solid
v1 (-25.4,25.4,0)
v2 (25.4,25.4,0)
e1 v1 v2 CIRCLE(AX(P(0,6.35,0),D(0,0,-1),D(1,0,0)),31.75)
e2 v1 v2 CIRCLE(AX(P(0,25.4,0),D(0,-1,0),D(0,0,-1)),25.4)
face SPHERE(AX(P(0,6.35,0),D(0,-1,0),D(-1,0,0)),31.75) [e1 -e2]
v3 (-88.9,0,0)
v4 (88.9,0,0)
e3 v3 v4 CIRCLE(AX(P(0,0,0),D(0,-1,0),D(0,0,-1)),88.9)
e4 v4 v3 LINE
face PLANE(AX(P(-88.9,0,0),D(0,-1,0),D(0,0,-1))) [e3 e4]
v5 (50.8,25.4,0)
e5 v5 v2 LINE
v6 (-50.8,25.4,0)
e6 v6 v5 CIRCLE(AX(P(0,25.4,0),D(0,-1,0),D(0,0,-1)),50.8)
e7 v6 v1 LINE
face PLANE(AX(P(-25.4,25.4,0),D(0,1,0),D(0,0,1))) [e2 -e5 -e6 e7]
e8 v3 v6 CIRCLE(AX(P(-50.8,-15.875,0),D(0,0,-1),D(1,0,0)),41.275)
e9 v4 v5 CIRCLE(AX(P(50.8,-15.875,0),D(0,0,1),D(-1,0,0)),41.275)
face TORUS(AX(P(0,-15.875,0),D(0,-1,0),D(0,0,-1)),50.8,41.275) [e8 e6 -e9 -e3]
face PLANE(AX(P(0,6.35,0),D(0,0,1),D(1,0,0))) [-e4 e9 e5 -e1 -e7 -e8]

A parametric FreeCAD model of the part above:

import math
import FreeCAD as App
import Part
import Sketcher

V = App.Vector
Q = App.Units.Quantity

doc = App.newDocument("Part")
params = doc.addObject("Spreadsheet::Sheet", "Params")
for row, (alias, value) in enumerate([
    ("sketch1_width", "1 in"),
    ("sketch1_radius", "1.25 in"),
    ("sketch1_width2", "3.5 in"),
    ("sketch1_height", "1.5 in"),
    ("revolution_angle", "180 deg"),
], start=1):
    params.set(f"A{row}", alias)
    params.set(f"B{row}", "=" + value)
    params.setAlias(f"B{row}", alias)

body = doc.addObject("PartDesign::Body", "Body")

# Sketch on XY plane
sketch1 = doc.addObject("Sketcher::SketchObject", "Sketch")
body.addObject(sketch1)
sketch1.AttachmentSupport = (doc.XY_Plane, [""])
sketch1.MapMode = "FlatFace"
sketch1.addGeometry(Part.LineSegment(V(0, 38.1, 0), V(0, 0, 0)), False)
sketch1.addGeometry(Part.LineSegment(V(0, 0, 0), V(88.9, 0, 0)), False)
sketch1.addGeometry(Part.ArcOfCircle(Part.Circle(V(50.8, -15.875, 0), V(0, 0, 1), 41.275), math.radians(22.619865), math.radians(90)), False)
sketch1.addGeometry(Part.LineSegment(V(50.8, 25.4, 0), V(25.4, 25.4, 0)), False)
sketch1.addGeometry(Part.ArcOfCircle(Part.Circle(V(0, 6.35, 0), V(0, 0, 1), 31.75), math.radians(36.869898), math.radians(90)), False)
sketch1.addConstraint(Sketcher.Constraint("Coincident", 0, 2, 1, 1))
sketch1.addConstraint(Sketcher.Constraint("Coincident", 1, 2, 2, 1))
sketch1.addConstraint(Sketcher.Constraint("Tangent", 2, 2, 3, 1))
sketch1.addConstraint(Sketcher.Constraint("Coincident", 3, 2, 4, 1))
sketch1.addConstraint(Sketcher.Constraint("Coincident", 4, 2, 0, 1))
sketch1.addConstraint(Sketcher.Constraint("Vertical", 0))
sketch1.addConstraint(Sketcher.Constraint("Horizontal", 1))
sketch1.addConstraint(Sketcher.Constraint("Horizontal", 3))
sketch1.addConstraint(Sketcher.Constraint("Coincident", 0, 2, -1, 1))
sketch1.addConstraint(Sketcher.Constraint("PointOnObject", 4, 3, -2))
sketch1.addConstraint(Sketcher.Constraint("DistanceX", 3, 2, 3, 1, Q("1 in")))
sketch1.addConstraint(Sketcher.Constraint("Radius", 4, Q("1.25 in")))
sketch1.addConstraint(Sketcher.Constraint("DistanceX", 1, 1, 1, 2, Q("3.5 in")))
sketch1.addConstraint(Sketcher.Constraint("DistanceY", 0, 2, 0, 1, Q("1.5 in")))
sketch1.addConstraint(Sketcher.Constraint("DistanceX", -1, 1, 2, 3, Q("2 in")))
sketch1.setExpression("Constraints[10]", "Params.sketch1_width")
sketch1.setExpression("Constraints[11]", "Params.sketch1_radius")
sketch1.setExpression("Constraints[12]", "Params.sketch1_width2")
sketch1.setExpression("Constraints[13]", "Params.sketch1_height")
revolution = doc.addObject("PartDesign::Revolution", "Revolution")
body.addObject(revolution)
revolution.Profile = sketch1
revolution.ReferenceAxis = (sketch1, ["V_Axis"])
revolution.setExpression("Angle", "Params.revolution_angle")

doc.recompute()
